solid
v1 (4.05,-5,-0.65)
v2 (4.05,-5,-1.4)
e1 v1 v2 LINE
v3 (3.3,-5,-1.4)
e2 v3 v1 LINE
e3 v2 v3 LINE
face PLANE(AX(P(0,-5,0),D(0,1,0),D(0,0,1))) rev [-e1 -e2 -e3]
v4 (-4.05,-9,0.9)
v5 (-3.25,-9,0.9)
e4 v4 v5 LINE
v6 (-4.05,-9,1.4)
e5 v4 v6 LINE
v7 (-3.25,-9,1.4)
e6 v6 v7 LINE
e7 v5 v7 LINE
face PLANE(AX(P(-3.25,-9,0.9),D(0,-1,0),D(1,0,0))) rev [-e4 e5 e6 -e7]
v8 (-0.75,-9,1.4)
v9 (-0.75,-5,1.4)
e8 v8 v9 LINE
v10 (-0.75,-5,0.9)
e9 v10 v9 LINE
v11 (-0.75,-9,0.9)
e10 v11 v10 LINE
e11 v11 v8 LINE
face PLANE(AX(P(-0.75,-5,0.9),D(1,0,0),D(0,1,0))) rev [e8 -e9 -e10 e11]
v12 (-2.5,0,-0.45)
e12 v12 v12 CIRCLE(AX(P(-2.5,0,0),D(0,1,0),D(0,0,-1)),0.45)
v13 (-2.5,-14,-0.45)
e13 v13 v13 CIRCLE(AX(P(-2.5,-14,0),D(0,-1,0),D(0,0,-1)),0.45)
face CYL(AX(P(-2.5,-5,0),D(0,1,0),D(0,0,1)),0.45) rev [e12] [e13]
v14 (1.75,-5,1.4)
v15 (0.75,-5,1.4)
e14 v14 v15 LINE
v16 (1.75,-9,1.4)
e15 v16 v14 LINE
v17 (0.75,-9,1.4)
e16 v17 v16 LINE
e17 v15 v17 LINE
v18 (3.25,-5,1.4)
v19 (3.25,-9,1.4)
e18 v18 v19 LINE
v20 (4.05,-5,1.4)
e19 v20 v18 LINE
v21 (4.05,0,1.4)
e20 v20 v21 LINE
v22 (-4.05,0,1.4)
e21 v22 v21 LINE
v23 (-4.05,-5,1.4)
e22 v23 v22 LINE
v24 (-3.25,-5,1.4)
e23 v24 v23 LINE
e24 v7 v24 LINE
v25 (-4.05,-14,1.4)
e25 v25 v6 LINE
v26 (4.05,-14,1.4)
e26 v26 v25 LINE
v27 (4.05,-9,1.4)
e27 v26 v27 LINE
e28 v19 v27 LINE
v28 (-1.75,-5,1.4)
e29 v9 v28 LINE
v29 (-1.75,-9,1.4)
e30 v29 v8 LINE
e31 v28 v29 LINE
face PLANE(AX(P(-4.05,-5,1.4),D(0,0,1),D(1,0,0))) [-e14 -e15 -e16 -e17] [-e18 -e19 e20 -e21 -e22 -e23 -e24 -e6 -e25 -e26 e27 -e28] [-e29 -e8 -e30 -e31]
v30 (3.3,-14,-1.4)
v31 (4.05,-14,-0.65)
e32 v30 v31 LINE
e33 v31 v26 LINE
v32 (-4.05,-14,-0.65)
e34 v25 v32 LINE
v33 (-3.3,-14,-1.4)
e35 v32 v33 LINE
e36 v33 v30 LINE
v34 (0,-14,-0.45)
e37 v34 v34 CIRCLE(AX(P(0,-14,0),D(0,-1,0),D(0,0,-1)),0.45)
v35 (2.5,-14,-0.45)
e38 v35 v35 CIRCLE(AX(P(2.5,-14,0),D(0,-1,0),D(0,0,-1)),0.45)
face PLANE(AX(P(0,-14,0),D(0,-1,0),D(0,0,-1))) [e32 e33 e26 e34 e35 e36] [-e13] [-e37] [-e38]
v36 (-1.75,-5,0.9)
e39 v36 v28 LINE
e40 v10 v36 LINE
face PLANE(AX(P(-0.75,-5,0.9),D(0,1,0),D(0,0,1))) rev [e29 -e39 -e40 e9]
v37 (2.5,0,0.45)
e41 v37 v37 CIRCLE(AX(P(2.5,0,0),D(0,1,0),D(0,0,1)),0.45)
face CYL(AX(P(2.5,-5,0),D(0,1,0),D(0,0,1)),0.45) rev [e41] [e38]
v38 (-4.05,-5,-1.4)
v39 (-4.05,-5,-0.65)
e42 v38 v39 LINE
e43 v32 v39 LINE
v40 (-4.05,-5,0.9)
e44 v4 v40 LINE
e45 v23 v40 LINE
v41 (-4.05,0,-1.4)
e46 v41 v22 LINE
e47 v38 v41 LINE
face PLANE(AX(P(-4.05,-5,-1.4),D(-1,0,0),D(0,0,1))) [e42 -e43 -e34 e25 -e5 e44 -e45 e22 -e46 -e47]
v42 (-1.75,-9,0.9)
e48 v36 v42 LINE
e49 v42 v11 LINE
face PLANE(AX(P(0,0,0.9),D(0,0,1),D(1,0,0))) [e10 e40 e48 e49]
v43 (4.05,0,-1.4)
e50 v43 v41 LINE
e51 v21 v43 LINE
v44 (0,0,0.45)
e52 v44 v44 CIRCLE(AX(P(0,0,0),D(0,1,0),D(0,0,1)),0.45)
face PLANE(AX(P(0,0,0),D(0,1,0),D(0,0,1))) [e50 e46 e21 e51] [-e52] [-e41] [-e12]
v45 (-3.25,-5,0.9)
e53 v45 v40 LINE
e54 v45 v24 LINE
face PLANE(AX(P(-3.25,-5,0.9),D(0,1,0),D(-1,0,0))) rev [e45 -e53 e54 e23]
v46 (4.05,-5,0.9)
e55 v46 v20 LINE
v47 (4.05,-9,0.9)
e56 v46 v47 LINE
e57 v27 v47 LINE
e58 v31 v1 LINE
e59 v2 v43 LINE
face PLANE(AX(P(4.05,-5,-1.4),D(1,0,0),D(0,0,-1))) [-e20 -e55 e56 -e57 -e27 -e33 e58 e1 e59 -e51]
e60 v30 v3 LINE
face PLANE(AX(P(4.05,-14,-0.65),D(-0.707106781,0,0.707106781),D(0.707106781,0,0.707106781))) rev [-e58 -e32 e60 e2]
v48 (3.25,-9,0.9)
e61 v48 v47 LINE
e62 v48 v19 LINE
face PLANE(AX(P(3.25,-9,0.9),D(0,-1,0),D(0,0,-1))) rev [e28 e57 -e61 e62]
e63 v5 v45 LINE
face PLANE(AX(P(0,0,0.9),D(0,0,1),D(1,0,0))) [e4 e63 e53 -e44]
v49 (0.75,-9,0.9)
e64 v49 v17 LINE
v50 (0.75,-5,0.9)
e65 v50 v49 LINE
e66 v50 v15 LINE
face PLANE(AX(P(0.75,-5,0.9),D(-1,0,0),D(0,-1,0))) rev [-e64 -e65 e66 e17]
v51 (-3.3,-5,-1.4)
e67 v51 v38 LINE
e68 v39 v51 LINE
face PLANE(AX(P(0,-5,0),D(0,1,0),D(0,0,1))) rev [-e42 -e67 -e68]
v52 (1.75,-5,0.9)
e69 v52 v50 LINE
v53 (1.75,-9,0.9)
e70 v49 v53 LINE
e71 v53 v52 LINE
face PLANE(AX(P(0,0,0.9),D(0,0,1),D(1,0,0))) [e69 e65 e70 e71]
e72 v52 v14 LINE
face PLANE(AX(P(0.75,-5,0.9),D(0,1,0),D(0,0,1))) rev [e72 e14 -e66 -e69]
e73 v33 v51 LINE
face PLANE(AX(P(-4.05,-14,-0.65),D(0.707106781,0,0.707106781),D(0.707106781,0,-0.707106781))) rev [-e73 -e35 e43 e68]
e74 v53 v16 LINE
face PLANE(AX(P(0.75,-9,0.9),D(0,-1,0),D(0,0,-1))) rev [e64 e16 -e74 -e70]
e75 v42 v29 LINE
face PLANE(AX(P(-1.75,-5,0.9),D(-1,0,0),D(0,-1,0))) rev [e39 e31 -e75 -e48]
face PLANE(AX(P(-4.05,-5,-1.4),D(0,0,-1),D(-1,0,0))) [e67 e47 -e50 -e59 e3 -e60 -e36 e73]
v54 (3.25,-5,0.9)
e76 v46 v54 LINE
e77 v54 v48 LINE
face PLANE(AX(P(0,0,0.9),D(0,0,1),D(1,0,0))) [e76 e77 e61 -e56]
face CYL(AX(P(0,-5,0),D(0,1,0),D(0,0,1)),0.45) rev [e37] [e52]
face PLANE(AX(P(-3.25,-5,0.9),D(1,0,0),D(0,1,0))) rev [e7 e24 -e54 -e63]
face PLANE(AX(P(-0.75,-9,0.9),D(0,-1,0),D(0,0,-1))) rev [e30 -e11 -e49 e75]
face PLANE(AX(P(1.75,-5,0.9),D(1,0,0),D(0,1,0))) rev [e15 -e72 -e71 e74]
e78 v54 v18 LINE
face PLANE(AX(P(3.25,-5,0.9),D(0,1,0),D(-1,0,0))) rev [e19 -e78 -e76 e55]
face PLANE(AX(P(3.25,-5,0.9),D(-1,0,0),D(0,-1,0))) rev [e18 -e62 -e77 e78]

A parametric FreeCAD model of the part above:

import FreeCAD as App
import Part
import Sketcher


def add_polygon(sketch, points):
    """Adds a closed chain of lines whose ends are joined by coincident constraints."""
    first, n = sketch.GeometryCount, len(points)
    for a, b in zip(points, points[1:] + points[:1]):
        sketch.addGeometry(Part.LineSegment(App.Vector(*a, 0), App.Vector(*b, 0)), False)
    for i in range(n):
        sketch.addConstraint(Sketcher.Constraint("Coincident", first + i, 2, first + (i + 1) % n, 1))

doc = App.newDocument("Part")
body = doc.addObject("PartDesign::Body", "Body")

# Sketch on XZ plane
sketch1 = body.newObject("Sketcher::SketchObject", "Sketch")
sketch1.AttachmentSupport = (doc.getObject("XZ_Plane"), [""])
sketch1.MapMode = "FlatFace"
add_polygon(sketch1, [(-4.05, -1.4), (-4.05, 1.4), (4.05, 1.4), (4.05, -1.4)])  # lines 0-3
sketch1.addGeometry(Part.Circle(App.Vector(-2.5, 0, 0), App.Vector(0, 0, 1), 0.45), False)  # 4
sketch1.addGeometry(Part.Circle(App.Vector(0, 0, 0), App.Vector(0, 0, 1), 0.45), False)  # 5
sketch1.addGeometry(Part.Circle(App.Vector(2.5, 0, 0), App.Vector(0, 0, 1), 0.45), False)  # 6
sketch1.addConstraint([
    Sketcher.Constraint("Vertical", 0),
    Sketcher.Constraint("Horizontal", 1),
    Sketcher.Constraint("Vertical", 2),
    Sketcher.Constraint("Horizontal", 3),
    Sketcher.Constraint("Coincident", 5, 3, -1, 1),
    Sketcher.Constraint("Equal", 4, 5),
    Sketcher.Constraint("Equal", 5, 6),
    Sketcher.Constraint("Symmetric", 4, 3, 6, 3, -1, 1),
    Sketcher.Constraint("Symmetric", 0, 2, 2, 2, -1, 1),
    Sketcher.Constraint("PointOnObject", 4, 3, -1),
    Sketcher.Constraint("Diameter", 4, 0.9),
    Sketcher.Constraint("DistanceX", 1, 1, 1, 2, 8.1),
    Sketcher.Constraint("DistanceY", 0, 1, 0, 2, 2.8),
    Sketcher.Constraint("DistanceX", 4, 3, 6, 3, 5.0),
])
pad1 = body.newObject("PartDesign::Pad", "Pad")
pad1.Profile = sketch1
pad1.Length = 5

# Sketch on XZ plane
sketch2 = body.newObject("Sketcher::SketchObject", "Sketch001")
sketch2.AttachmentSupport = (doc.getObject("XZ_Plane"), [""])
sketch2.MapMode = "FlatFace"
sketch2.AttachmentOffset = App.Placement(App.Vector(0, 0, 5), App.Rotation())
add_polygon(sketch2, [(3.3, -1.4), (4.05, -0.65), (4.05, 1.4), (-4.05, 1.4), (-4.05, -0.65), (-3.3, -1.4)])  # lines 0-5
sketch2.addGeometry(Part.Circle(App.Vector(0, 0, 0), App.Vector(0, 0, 1), 0.45), False)  # 6
sketch2.addGeometry(Part.Circle(App.Vector(2.5, 0, 0), App.Vector(0, 0, 1), 0.45), False)  # 7
sketch2.addGeometry(Part.Circle(App.Vector(-2.5, 0, 0), App.Vector(0, 0, 1), 0.45), False)  # 8
sketch2.addConstraint([
    Sketcher.Constraint("Vertical", 1),
    Sketcher.Constraint("Horizontal", 2),
    Sketcher.Constraint("Vertical", 3),
    Sketcher.Constraint("Horizontal", 5),
    Sketcher.Constraint("Coincident", 6, 3, -1, 1),
    Sketcher.Constraint("Equal", 6, 7),
    Sketcher.Constraint("Equal", 7, 8),
    Sketcher.Constraint("Symmetric", 7, 3, 8, 3, -1, 1),
    Sketcher.Constraint("Symmetric", 0, 2, 3, 2, -2),
    Sketcher.Constraint("PointOnObject", 7, 3, -1),
    Sketcher.Constraint("Perpendicular", 0, 4),
    Sketcher.Constraint("Equal", 0, 4),
    Sketcher.Constraint("Diameter", 6, 0.9),
    Sketcher.Constraint("DistanceX", 2, 2, 2, 1, 8.1),
    Sketcher.Constraint("DistanceX", 5, 1, 5, 2, 6.6),
    Sketcher.Constraint("DistanceX", 8, 3, 7, 3, 5.0),
    Sketcher.Constraint("DistanceY", 1, 1, 1, 2, 2.05),
    Sketcher.Constraint("DistanceY", -1, 1, 1, 2, 1.4),
])
pad2 = body.newObject("PartDesign::Pad", "Pad001")
pad2.Profile = sketch2
pad2.Length = 9

# Sketch on XY plane
sketch3 = body.newObject("Sketcher::SketchObject", "Sketch002")
sketch3.AttachmentSupport = (doc.getObject("XY_Plane"), [""])
sketch3.MapMode = "FlatFace"
sketch3.AttachmentOffset = App.Placement(App.Vector(0, 0, 1.4), App.Rotation())
add_polygon(sketch3, [(-4.2, -5), (-4.2, -9), (-3.2, -9), (-3.2, -5)])  # lines 0-3
add_polygon(sketch3, [(3.2, -5), (3.2, -9), (4.2, -9), (4.2, -5)])  # lines 4-7
add_polygon(sketch3, [(-1.8, -5), (-1.8, -9), (-0.8, -9), (-0.8, -5)])  # lines 8-11
add_polygon(sketch3, [(0.8, -5), (0.8, -9), (1.8, -9), (1.8, -5)])  # lines 12-15
sketch3.addConstraint([
    Sketcher.Constraint("Vertical", 0),
    Sketcher.Constraint("Horizontal", 1),
    Sketcher.Constraint("Vertical", 2),
    Sketcher.Constraint("Horizontal", 3),
    Sketcher.Constraint("Vertical", 4),
    Sketcher.Constraint("Horizontal", 5),
    Sketcher.Constraint("Vertical", 6),
    Sketcher.Constraint("Horizontal", 7),
    Sketcher.Constraint("Vertical", 8),
    Sketcher.Constraint("Horizontal", 9),
    Sketcher.Constraint("Vertical", 10),
    Sketcher.Constraint("Horizontal", 11),
    Sketcher.Constraint("Vertical", 12),
    Sketcher.Constraint("Horizontal", 13),
    Sketcher.Constraint("Vertical", 14),
    Sketcher.Constraint("Horizontal", 15),
    Sketcher.Constraint("Symmetric", 1, 2, 4, 2, -2),
    Sketcher.Constraint("Symmetric", 3, 2, 6, 2, -2),
    Sketcher.Constraint("Symmetric", 9, 2, 12, 2, -2),
    Sketcher.Constraint("Symmetric", 11, 2, 14, 2, -2),
    Sketcher.Constraint("Horizontal", 5, 2, 8, 2),
    Sketcher.Constraint("Horizontal", 7, 2, 10, 2),
    Sketcher.Constraint("Equal", 7, 9),
    Sketcher.Constraint("DistanceX", 1, 1, 1, 2, 1.0),
    Sketcher.Constraint("DistanceY", 0, 2, 0, 1, 4.0),
    Sketcher.Constraint("DistanceY", 0, 2, -1, 1, 9.0),
    Sketcher.Constraint("DistanceX", 8, 2, 4, 2, 5.0),
    Sketcher.Constraint("DistanceX", 1, 2, 4, 2, 6.5),
])
pocket1 = body.newObject("PartDesign::Pocket", "Pocket")
pocket1.Profile = sketch3
pocket1.Length = 0.5

doc.recompute()
